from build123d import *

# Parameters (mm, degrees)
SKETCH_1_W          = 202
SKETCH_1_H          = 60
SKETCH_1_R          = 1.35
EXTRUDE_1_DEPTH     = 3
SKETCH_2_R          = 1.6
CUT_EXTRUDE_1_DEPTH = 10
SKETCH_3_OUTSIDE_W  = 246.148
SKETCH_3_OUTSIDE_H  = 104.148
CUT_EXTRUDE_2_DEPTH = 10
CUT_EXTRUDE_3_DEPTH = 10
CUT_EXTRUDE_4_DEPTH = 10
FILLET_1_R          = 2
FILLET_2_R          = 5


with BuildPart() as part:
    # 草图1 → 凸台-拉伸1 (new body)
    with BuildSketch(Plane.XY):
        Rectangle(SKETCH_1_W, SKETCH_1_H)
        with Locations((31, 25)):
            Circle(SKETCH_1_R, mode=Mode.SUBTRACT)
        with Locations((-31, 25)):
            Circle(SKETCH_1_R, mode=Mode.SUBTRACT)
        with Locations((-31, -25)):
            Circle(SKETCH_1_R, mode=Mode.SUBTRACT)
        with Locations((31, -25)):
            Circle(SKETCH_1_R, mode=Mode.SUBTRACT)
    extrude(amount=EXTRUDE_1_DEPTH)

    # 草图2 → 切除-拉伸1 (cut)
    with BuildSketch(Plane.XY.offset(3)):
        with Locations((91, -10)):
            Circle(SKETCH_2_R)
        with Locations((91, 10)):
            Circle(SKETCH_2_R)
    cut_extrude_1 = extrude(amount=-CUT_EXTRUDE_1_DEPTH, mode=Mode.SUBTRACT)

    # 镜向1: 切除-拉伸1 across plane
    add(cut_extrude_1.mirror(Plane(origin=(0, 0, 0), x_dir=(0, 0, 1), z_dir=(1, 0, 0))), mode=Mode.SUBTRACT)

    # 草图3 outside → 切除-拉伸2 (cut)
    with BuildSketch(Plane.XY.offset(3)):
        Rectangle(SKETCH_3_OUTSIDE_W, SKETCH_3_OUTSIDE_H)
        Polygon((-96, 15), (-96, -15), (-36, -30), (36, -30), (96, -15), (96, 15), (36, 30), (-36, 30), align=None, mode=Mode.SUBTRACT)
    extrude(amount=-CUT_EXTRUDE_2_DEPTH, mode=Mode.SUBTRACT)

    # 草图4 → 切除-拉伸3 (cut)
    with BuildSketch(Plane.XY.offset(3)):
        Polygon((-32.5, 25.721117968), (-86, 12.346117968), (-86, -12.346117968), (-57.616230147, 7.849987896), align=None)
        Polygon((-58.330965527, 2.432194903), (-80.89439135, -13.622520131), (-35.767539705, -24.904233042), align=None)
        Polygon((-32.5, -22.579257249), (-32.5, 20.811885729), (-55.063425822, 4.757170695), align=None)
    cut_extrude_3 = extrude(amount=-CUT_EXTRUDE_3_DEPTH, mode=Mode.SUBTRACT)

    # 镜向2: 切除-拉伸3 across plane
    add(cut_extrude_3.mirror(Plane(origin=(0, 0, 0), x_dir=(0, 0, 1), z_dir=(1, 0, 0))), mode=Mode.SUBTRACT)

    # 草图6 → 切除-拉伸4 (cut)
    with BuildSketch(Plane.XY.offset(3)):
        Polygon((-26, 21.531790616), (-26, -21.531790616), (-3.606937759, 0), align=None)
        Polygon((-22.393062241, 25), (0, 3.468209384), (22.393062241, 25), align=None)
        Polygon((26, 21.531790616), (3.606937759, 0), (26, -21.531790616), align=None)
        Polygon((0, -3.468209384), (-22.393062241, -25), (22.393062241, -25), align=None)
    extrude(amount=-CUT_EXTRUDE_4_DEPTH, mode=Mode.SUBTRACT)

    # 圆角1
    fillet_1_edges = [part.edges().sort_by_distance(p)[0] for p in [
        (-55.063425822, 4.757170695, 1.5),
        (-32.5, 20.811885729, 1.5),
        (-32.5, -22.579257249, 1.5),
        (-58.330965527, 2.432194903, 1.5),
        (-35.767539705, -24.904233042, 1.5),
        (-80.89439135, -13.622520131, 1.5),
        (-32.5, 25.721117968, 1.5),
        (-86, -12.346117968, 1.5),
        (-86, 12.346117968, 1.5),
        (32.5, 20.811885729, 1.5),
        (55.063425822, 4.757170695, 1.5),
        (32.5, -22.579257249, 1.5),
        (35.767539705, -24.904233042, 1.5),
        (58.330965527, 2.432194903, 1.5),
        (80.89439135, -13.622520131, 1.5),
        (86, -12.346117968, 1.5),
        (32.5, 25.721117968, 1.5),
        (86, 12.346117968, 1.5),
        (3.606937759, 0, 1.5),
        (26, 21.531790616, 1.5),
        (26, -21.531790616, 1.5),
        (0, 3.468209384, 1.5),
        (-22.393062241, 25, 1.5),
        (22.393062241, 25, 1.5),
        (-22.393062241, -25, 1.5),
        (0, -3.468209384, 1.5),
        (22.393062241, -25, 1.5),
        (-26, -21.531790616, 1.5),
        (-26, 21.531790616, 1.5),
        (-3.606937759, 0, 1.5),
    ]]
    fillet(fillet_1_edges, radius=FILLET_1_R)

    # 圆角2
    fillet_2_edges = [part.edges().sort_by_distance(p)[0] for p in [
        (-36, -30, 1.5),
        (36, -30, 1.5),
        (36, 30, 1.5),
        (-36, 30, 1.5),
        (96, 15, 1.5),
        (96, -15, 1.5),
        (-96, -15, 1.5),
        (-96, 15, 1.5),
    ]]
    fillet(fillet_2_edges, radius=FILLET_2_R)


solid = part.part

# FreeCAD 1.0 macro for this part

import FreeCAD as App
import Part
import Sketcher


def edges_at(feature, points):
    """Names of the edges that pass closest to the given points."""
    edges = feature.Shape.Edges
    near = lambda p: min(range(len(edges)), key=lambda i: edges[i].distToShape(Part.Vertex(*p))[0])
    return sorted({f"Edge{near(p) + 1}" for p in points})

doc = App.newDocument("Part")
body = doc.addObject("PartDesign::Body", "Body")

sketch1 = body.newObject("Sketcher::SketchObject", "Sketch")
sketch1.AttachmentSupport = (doc.getObject("XY_Plane"), [""])
sketch1.MapMode = "FlatFace"
sketch1.addGeometry(Part.LineSegment(App.Vector(-101, 30, 0), App.Vector(-101, -30, 0)), False)
sketch1.addGeometry(Part.LineSegment(App.Vector(-101, -30, 0), App.Vector(101, -30, 0)), False)
sketch1.addGeometry(Part.LineSegment(App.Vector(101, -30, 0), App.Vector(101, 30, 0)), False)
sketch1.addGeometry(Part.LineSegment(App.Vector(101, 30, 0), App.Vector(-101, 30, 0)), False)
sketch1.addGeometry(Part.Circle(App.Vector(-31, -25, 0), App.Vector(0, 0, 1), 1.35), False)
sketch1.addGeometry(Part.Circle(App.Vector(31, -25, 0), App.Vector(0, 0, 1), 1.35), False)
sketch1.addGeometry(Part.Circle(App.Vector(-31, 25, 0), App.Vector(0, 0, 1), 1.35), False)
sketch1.addGeometry(Part.Circle(App.Vector(31, 25, 0), App.Vector(0, 0, 1), 1.35), False)
sketch1.addConstraint(Sketcher.Constraint("Coincident", 0, 2, 1, 1))
sketch1.addConstraint(Sketcher.Constraint("Coincident", 1, 2, 2, 1))
sketch1.addConstraint(Sketcher.Constraint("Coincident", 2, 2, 3, 1))
sketch1.addConstraint(Sketcher.Constraint("Coincident", 3, 2, 0, 1))
sketch1.addConstraint(Sketcher.Constraint("Vertical", 0))
sketch1.addConstraint(Sketcher.Constraint("Horizontal", 1))
sketch1.addConstraint(Sketcher.Constraint("Vertical", 2))
sketch1.addConstraint(Sketcher.Constraint("Horizontal", 3))
sketch1.addConstraint(Sketcher.Constraint("Equal", 4, 5))
sketch1.addConstraint(Sketcher.Constraint("Equal", 5, 6))
sketch1.addConstraint(Sketcher.Constraint("Equal", 6, 7))
sketch1.addConstraint(Sketcher.Constraint("Symmetric", 5, 3, 6, 3, -1, 1))
sketch1.addConstraint(Sketcher.Constraint("Symmetric", 4, 3, 7, 3, -1, 1))
sketch1.addConstraint(Sketcher.Constraint("Symmetric", 0, 2, 2, 2, -1, 1))
sketch1.addConstraint(Sketcher.Constraint("Symmetric", 4, 3, 5, 3, -2))
sketch1.addConstraint(Sketcher.Constraint("Diameter", 4, 2.7))
sketch1.addConstraint(Sketcher.Constraint("DistanceX", 1, 1, 1, 2, 202.0))
sketch1.addConstraint(Sketcher.Constraint("DistanceY", 0, 2, 0, 1, 60.0))
sketch1.addConstraint(Sketcher.Constraint("DistanceX", 4, 3, -1, 1, 31.0))
sketch1.addConstraint(Sketcher.Constraint("DistanceY", 4, 3, -1, 1, 25.0))
pad1 = body.newObject("PartDesign::Pad", "Pad")
pad1.Profile = sketch1
pad1.Length = 3

sketch2 = body.newObject("Sketcher::SketchObject", "Sketch001")
sketch2.AttachmentSupport = (doc.getObject("XY_Plane"), [""])
sketch2.MapMode = "FlatFace"
sketch2.AttachmentOffset = App.Placement(App.Vector(0, 0, 3), App.Rotation())
sketch2.addGeometry(Part.Circle(App.Vector(91, -10, 0), App.Vector(0, 0, 1), 1.6), False)
sketch2.addGeometry(Part.Circle(App.Vector(91, 10, 0), App.Vector(0, 0, 1), 1.6), False)
sketch2.addConstraint(Sketcher.Constraint("Equal", 0, 1))
sketch2.addConstraint(Sketcher.Constraint("Symmetric", 0, 3, 1, 3, -1))
sketch2.addConstraint(Sketcher.Constraint("Diameter", 0, 3.2))
sketch2.addConstraint(Sketcher.Constraint("DistanceX", -1, 1, 0, 3, 91.0))
sketch2.addConstraint(Sketcher.Constraint("DistanceY", 0, 3, -1, 1, 10.0))
pocket1 = body.newObject("PartDesign::Pocket", "Pocket")
pocket1.Profile = sketch2
pocket1.Length = 10
doc.recompute()

mirrored = body.newObject("PartDesign::Mirrored", "Mirrored")
mirrored.Originals = [pocket1]
mirrored.MirrorPlane = (doc.getObject("YZ_Plane"), [""])
body.Tip = mirrored

sketch3 = body.newObject("Sketcher::SketchObject", "Sketch002")
sketch3.AttachmentSupport = (doc.getObject("XY_Plane"), [""])
sketch3.MapMode = "FlatFace"
sketch3.AttachmentOffset = App.Placement(App.Vector(0, 0, 3), App.Rotation())
sketch3.addGeometry(Part.LineSegment(App.Vector(-123.074, 52.074, 0), App.Vector(-123.074, -52.074, 0)), False)
sketch3.addGeometry(Part.LineSegment(App.Vector(-123.074, -52.074, 0), App.Vector(123.074, -52.074, 0)), False)
sketch3.addGeometry(Part.LineSegment(App.Vector(123.074, -52.074, 0), App.Vector(123.074, 52.074, 0)), False)
sketch3.addGeometry(Part.LineSegment(App.Vector(123.074, 52.074, 0), App.Vector(-123.074, 52.074, 0)), False)
sketch3.addGeometry(Part.LineSegment(App.Vector(-96, -15, 0), App.Vector(-96, 15, 0)), False)
sketch3.addGeometry(Part.LineSegment(App.Vector(-96, 15, 0), App.Vector(-36, 30, 0)), False)
sketch3.addGeometry(Part.LineSegment(App.Vector(-36, 30, 0), App.Vector(36, 30, 0)), False)
sketch3.addGeometry(Part.LineSegment(App.Vector(36, 30, 0), App.Vector(96, 15, 0)), False)
sketch3.addGeometry(Part.LineSegment(App.Vector(96, 15, 0), App.Vector(96, -15, 0)), False)
sketch3.addGeometry(Part.LineSegment(App.Vector(96, -15, 0), App.Vector(36, -30, 0)), False)
sketch3.addGeometry(Part.LineSegment(App.Vector(36, -30, 0), App.Vector(-36, -30, 0)), False)
sketch3.addGeometry(Part.LineSegment(App.Vector(-36, -30, 0), App.Vector(-96, -15, 0)), False)
sketch3.addConstraint(Sketcher.Constraint("Coincident", 0, 2, 1, 1))
sketch3.addConstraint(Sketcher.Constraint("Coincident", 1, 2, 2, 1))
sketch3.addConstraint(Sketcher.Constraint("Coincident", 2, 2, 3, 1))
sketch3.addConstraint(Sketcher.Constraint("Coincident", 3, 2, 0, 1))
sketch3.addConstraint(Sketcher.Constraint("Coincident", 4, 2, 5, 1))
sketch3.addConstraint(Sketcher.Constraint("Coincident", 5, 2, 6, 1))
sketch3.addConstraint(Sketcher.Constraint("Coincident", 6, 2, 7, 1))
sketch3.addConstraint(Sketcher.Constraint("Coincident", 7, 2, 8, 1))
sketch3.addConstraint(Sketcher.Constraint("Coincident", 8, 2, 9, 1))
sketch3.addConstraint(Sketcher.Constraint("Coincident", 9, 2, 10, 1))
sketch3.addConstraint(Sketcher.Constraint("Coincident", 10, 2, 11, 1))
sketch3.addConstraint(Sketcher.Constraint("Coincident", 11, 2, 4, 1))
sketch3.addConstraint(Sketcher.Constraint("Vertical", 0))
sketch3.addConstraint(Sketcher.Constraint("Horizontal", 1))
sketch3.addConstraint(Sketcher.Constraint("Vertical", 2))
sketch3.addConstraint(Sketcher.Constraint("Horizontal", 3))
sketch3.addConstraint(Sketcher.Constraint("Vertical", 4))
sketch3.addConstraint(Sketcher.Constraint("Horizontal", 6))
sketch3.addConstraint(Sketcher.Constraint("Vertical", 8))
sketch3.addConstraint(Sketcher.Constraint("Horizontal", 10))
sketch3.addConstraint(Sketcher.Constraint("Symmetric", 0, 2, 2, 2, -1, 1))
sketch3.addConstraint(Sketcher.Constraint("Symmetric", 4, 2, 8, 2, -1, 1))
sketch3.addConstraint(Sketcher.Constraint("Symmetric", 5, 2, 9, 2, -1, 1))
sketch3.addConstraint(Sketcher.Constraint("Parallel", 7, 11))
sketch3.addConstraint(Sketcher.Constraint("Horizontal", 4, 2, 7, 2))
sketch3.addConstraint(Sketcher.Constraint("Horizontal", 8, 2, 11, 2))
sketch3.addConstraint(Sketcher.Constraint("Vertical", 6, 2, 9, 2))
sketch3.addConstraint(Sketcher.Constraint("DistanceX", 6, 1, 6, 2, 72.0))
sketch3.addConstraint(Sketcher.Constraint("DistanceY", 4, 1, 4, 2, 30.0))
sketch3.addConstraint(Sketcher.Constraint("DistanceX", 4, 2, -1, 1, 96.0))
sketch3.addConstraint(Sketcher.Constraint("DistanceY", -1, 1, 5, 2, 30.0))
sketch3.addConstraint(Sketcher.Constraint("DistanceX", 1, 1, 1, 2, 246.148))
sketch3.addConstraint(Sketcher.Constraint("DistanceY", 0, 2, 0, 1, 104.148))
pocket2 = body.newObject("PartDesign::Pocket", "Pocket001")
pocket2.Profile = sketch3
pocket2.Length = 10

sketch4 = body.newObject("Sketcher::SketchObject", "Sketch003")
sketch4.AttachmentSupport = (doc.getObject("XY_Plane"), [""])
sketch4.MapMode = "FlatFace"
sketch4.AttachmentOffset = App.Placement(App.Vector(0, 0, 3), App.Rotation())
sketch4.addGeometry(Part.LineSegment(App.Vector(-32.5, 25.721118, 0), App.Vector(-86, 12.346118, 0)), False)
sketch4.addGeometry(Part.LineSegment(App.Vector(-86, 12.346118, 0), App.Vector(-86, -12.346118, 0)), False)
sketch4.addGeometry(Part.LineSegment(App.Vector(-86, -12.346118, 0), App.Vector(-57.61623, 7.849988, 0)), False)
sketch4.addGeometry(Part.LineSegment(App.Vector(-57.61623, 7.849988, 0), App.Vector(-32.5, 25.721118, 0)), False)
sketch4.addGeometry(Part.LineSegment(App.Vector(-58.330966, 2.432195, 0), App.Vector(-80.894391, -13.62252, 0)), False)
sketch4.addGeometry(Part.LineSegment(App.Vector(-80.894391, -13.62252, 0), App.Vector(-35.76754, -24.904233, 0)), False)
sketch4.addGeometry(Part.LineSegment(App.Vector(-35.76754, -24.904233, 0), App.Vector(-58.330966, 2.432195, 0)), False)
sketch4.addGeometry(Part.LineSegment(App.Vector(-32.5, -22.579257, 0), App.Vector(-32.5, 20.811886, 0)), False)
sketch4.addGeometry(Part.LineSegment(App.Vector(-32.5, 20.811886, 0), App.Vector(-55.063426, 4.757171, 0)), False)
sketch4.addGeometry(Part.LineSegment(App.Vector(-55.063426, 4.757171, 0), App.Vector(-32.5, -22.579257, 0)), False)
sketch4.addConstraint(Sketcher.Constraint("Coincident", 0, 2, 1, 1))
sketch4.addConstraint(Sketcher.Constraint("Coincident", 1, 2, 2, 1))
sketch4.addConstraint(Sketcher.Constraint("Coincident", 2, 2, 3, 1))
sketch4.addConstraint(Sketcher.Constraint("Coincident", 3, 2, 0, 1))
sketch4.addConstraint(Sketcher.Constraint("Coincident", 4, 2, 5, 1))
sketch4.addConstraint(Sketcher.Constraint("Coincident", 5, 2, 6, 1))
sketch4.addConstraint(Sketcher.Constraint("Coincident", 6, 2, 4, 1))
sketch4.addConstraint(Sketcher.Constraint("Coincident", 7, 2, 8, 1))
sketch4.addConstraint(Sketcher.Constraint("Coincident", 8, 2, 9, 1))
sketch4.addConstraint(Sketcher.Constraint("Coincident", 9, 2, 7, 1))
sketch4.addConstraint(Sketcher.Constraint("Vertical", 1))
sketch4.addConstraint(Sketcher.Constraint("Vertical", 7))
sketch4.addConstraint(Sketcher.Constraint("DistanceX", 0, 2, -1, 1, 86.0))
sketch4.addConstraint(Sketcher.Constraint("DistanceX", 3, 2, -1, 1, 32.5))
sketch4.addConstraint(Sketcher.Constraint("DistanceX", 7, 2, -1, 1, 32.5))
sketch4.addConstraint(Sketcher.Constraint("DistanceY", 0, 2, 3, 2, 13.375))
sketch4.addConstraint(Sketcher.Constraint("Distance", 2, 34.83563))
sketch4.addConstraint(Sketcher.Constraint("Distance", 3, 30.825352))
sketch4.addConstraint(Sketcher.Constraint("Distance", 6, 35.445571))
sketch4.addConstraint(Sketcher.Constraint("Distance", 9, 35.445571))
sketch4.addConstraint(Sketcher.Constraint("DistanceY", 7, 1, 7, 2, 43.391143))
sketch4.addConstraint(Sketcher.Constraint("DistanceX", 2, 2, -1, 1, 57.61623))
sketch4.addConstraint(Sketcher.Constraint("DistanceX", 4, 2, -1, 1, 80.894391))
sketch4.addConstraint(Sketcher.Constraint("DistanceY", 4, 2, -1, 1, 13.62252))
sketch4.addConstraint(Sketcher.Constraint("DistanceX", 5, 2, -1, 1, 35.76754))
sketch4.addConstraint(Sketcher.Constraint("DistanceY", -1, 1, 8, 2, 4.757171))
sketch4.addConstraint(Sketcher.Constraint("DistanceY", 4, 2, 0, 2, 25.968638))
sketch4.addConstraint(Sketcher.Constraint("DistanceY", 5, 2, 2, 2, 32.754221))
sketch4.addConstraint(Sketcher.Constraint("DistanceY", 6, 2, 7, 2, 18.379691))
sketch4.addConstraint(Sketcher.Constraint("DistanceY", 5, 2, 7, 2, 45.716119))
pocket3 = body.newObject("PartDesign::Pocket", "Pocket002")
pocket3.Profile = sketch4
pocket3.Length = 10
doc.recompute()

mirrored2 = body.newObject("PartDesign::Mirrored", "Mirrored001")
mirrored2.Originals = [pocket3]
mirrored2.MirrorPlane = (doc.getObject("YZ_Plane"), [""])
body.Tip = mirrored2

sketch5 = body.newObject("Sketcher::SketchObject", "Sketch004")
sketch5.AttachmentSupport = (doc.getObject("XY_Plane"), [""])
sketch5.MapMode = "FlatFace"
sketch5.AttachmentOffset = App.Placement(App.Vector(0, 0, 3), App.Rotation())
sketch5.addGeometry(Part.LineSegment(App.Vector(-26, 21.531791, 0), App.Vector(-26, -21.531791, 0)), False)
sketch5.addGeometry(Part.LineSegment(App.Vector(-26, -21.531791, 0), App.Vector(-3.606938, 0, 0)), False)
sketch5.addGeometry(Part.LineSegment(App.Vector(-3.606938, 0, 0), App.Vector(-26, 21.531791, 0)), False)
sketch5.addGeometry(Part.LineSegment(App.Vector(-22.393062, 25, 0), App.Vector(0, 3.468209, 0)), False)
sketch5.addGeometry(Part.LineSegment(App.Vector(0, 3.468209, 0), App.Vector(22.393062, 25, 0)), False)
sketch5.addGeometry(Part.LineSegment(App.Vector(22.393062, 25, 0), App.Vector(-22.393062, 25, 0)), False)
sketch5.addGeometry(Part.LineSegment(App.Vector(26, 21.531791, 0), App.Vector(3.606938, 0, 0)), False)
sketch5.addGeometry(Part.LineSegment(App.Vector(3.606938, 0, 0), App.Vector(26, -21.531791, 0)), False)
sketch5.addGeometry(Part.LineSegment(App.Vector(26, -21.531791, 0), App.Vector(26, 21.531791, 0)), False)
sketch5.addGeometry(Part.LineSegment(App.Vector(0, -3.468209, 0), App.Vector(-22.393062, -25, 0)), False)
sketch5.addGeometry(Part.LineSegment(App.Vector(-22.393062, -25, 0), App.Vector(22.393062, -25, 0)), False)
sketch5.addGeometry(Part.LineSegment(App.Vector(22.393062, -25, 0), App.Vector(0, -3.468209, 0)), False)
sketch5.addConstraint(Sketcher.Constraint("Coincident", 0, 2, 1, 1))
sketch5.addConstraint(Sketcher.Constraint("Coincident", 1, 2, 2, 1))
sketch5.addConstraint(Sketcher.Constraint("Coincident", 2, 2, 0, 1))
sketch5.addConstraint(Sketcher.Constraint("Coincident", 3, 2, 4, 1))
sketch5.addConstraint(Sketcher.Constraint("Coincident", 4, 2, 5, 1))
sketch5.addConstraint(Sketcher.Constraint("Coincident", 5, 2, 3, 1))
sketch5.addConstraint(Sketcher.Constraint("Coincident", 6, 2, 7, 1))
sketch5.addConstraint(Sketcher.Constraint("Coincident", 7, 2, 8, 1))
sketch5.addConstraint(Sketcher.Constraint("Coincident", 8, 2, 6, 1))
sketch5.addConstraint(Sketcher.Constraint("Coincident", 9, 2, 10, 1))
sketch5.addConstraint(Sketcher.Constraint("Coincident", 10, 2, 11, 1))
sketch5.addConstraint(Sketcher.Constraint("Coincident", 11, 2, 9, 1))
sketch5.addConstraint(Sketcher.Constraint("Vertical", 0))
sketch5.addConstraint(Sketcher.Constraint("Horizontal", 5))
sketch5.addConstraint(Sketcher.Constraint("Vertical", 8))
sketch5.addConstraint(Sketcher.Constraint("Horizontal", 10))
sketch5.addConstraint(Sketcher.Constraint("Symmetric", 1, 2, 6, 2, -1, 1))
sketch5.addConstraint(Sketcher.Constraint("Symmetric", 2, 2, 7, 2, -1, 1))
sketch5.addConstraint(Sketcher.Constraint("Symmetric", 4, 2, 9, 2, -1, 1))
sketch5.addConstraint(Sketcher.Constraint("Symmetric", 3, 2, 11, 2, -1, 1))
sketch5.addConstraint(Sketcher.Constraint("PointOnObject", 1, 2, -1))
sketch5.addConstraint(Sketcher.Constraint("PointOnObject", 3, 2, -2))
sketch5.addConstraint(Sketcher.Constraint("Parallel", 2, 3))
sketch5.addConstraint(Sketcher.Constraint("Parallel", 1, 4))
sketch5.addConstraint(Sketcher.Constraint("Parallel", 4, 6))
sketch5.addConstraint(Sketcher.Constraint("Parallel", 7, 11))
sketch5.addConstraint(Sketcher.Constraint("Horizontal", 0, 2, 7, 2))
sketch5.addConstraint(Sketcher.Constraint("Equal", 2, 3))
sketch5.addConstraint(Sketcher.Constraint("DistanceX", 0, 2, -1, 1, 26.0))
sketch5.addConstraint(Sketcher.Constraint("DistanceY", -1, 1, 4, 2, 25.0))
sketch5.addConstraint(Sketcher.Constraint("DistanceY", 0, 2, 0, 1, 43.063581))
sketch5.addConstraint(Sketcher.Constraint("Distance", 1, 31.065531))
pocket4 = body.newObject("PartDesign::Pocket", "Pocket003")
pocket4.Profile = sketch5
pocket4.Length = 10
doc.recompute()

fillet = body.newObject("PartDesign::Fillet", "Fillet")
fillet.Base = (pocket4, edges_at(pocket4, [
    (-55.063, 4.757, 1.5),
    (-32.5, 20.812, 1.5),
    (-32.5, -22.579, 1.5),
    (-58.331, 2.432, 1.5),
    (-35.768, -24.904, 1.5),
    (-80.894, -13.623, 1.5),
    (-32.5, 25.721, 1.5),
    (-86, -12.346, 1.5),
    (-86, 12.346, 1.5),
    (32.5, 20.812, 1.5),
    (55.063, 4.757, 1.5),
    (32.5, -22.579, 1.5),
    (35.768, -24.904, 1.5),
    (58.331, 2.432, 1.5),
    (80.894, -13.623, 1.5),
    (86, -12.346, 1.5),
    (32.5, 25.721, 1.5),
    (86, 12.346, 1.5),
    (3.607, 0, 1.5),
    (26, 21.532, 1.5),
    (26, -21.532, 1.5),
    (0, 3.468, 1.5),
    (-22.393, 25, 1.5),
    (22.393, 25, 1.5),
    (-22.393, -25, 1.5),
    (0, -3.468, 1.5),
    (22.393, -25, 1.5),
    (-26, -21.532, 1.5),
    (-26, 21.532, 1.5),
    (-3.607, 0, 1.5),
]))
fillet.Radius = 2
doc.recompute()

fillet2 = body.newObject("PartDesign::Fillet", "Fillet001")
fillet2.Base = (fillet, edges_at(fillet, [
    (-36, -30, 1.5),
    (36, -30, 1.5),
    (36, 30, 1.5),
    (-36, 30, 1.5),
    (96, 15, 1.5),
    (96, -15, 1.5),
    (-96, -15, 1.5),
    (-96, 15, 1.5),
]))
fillet2.Radius = 5

doc.recompute()
